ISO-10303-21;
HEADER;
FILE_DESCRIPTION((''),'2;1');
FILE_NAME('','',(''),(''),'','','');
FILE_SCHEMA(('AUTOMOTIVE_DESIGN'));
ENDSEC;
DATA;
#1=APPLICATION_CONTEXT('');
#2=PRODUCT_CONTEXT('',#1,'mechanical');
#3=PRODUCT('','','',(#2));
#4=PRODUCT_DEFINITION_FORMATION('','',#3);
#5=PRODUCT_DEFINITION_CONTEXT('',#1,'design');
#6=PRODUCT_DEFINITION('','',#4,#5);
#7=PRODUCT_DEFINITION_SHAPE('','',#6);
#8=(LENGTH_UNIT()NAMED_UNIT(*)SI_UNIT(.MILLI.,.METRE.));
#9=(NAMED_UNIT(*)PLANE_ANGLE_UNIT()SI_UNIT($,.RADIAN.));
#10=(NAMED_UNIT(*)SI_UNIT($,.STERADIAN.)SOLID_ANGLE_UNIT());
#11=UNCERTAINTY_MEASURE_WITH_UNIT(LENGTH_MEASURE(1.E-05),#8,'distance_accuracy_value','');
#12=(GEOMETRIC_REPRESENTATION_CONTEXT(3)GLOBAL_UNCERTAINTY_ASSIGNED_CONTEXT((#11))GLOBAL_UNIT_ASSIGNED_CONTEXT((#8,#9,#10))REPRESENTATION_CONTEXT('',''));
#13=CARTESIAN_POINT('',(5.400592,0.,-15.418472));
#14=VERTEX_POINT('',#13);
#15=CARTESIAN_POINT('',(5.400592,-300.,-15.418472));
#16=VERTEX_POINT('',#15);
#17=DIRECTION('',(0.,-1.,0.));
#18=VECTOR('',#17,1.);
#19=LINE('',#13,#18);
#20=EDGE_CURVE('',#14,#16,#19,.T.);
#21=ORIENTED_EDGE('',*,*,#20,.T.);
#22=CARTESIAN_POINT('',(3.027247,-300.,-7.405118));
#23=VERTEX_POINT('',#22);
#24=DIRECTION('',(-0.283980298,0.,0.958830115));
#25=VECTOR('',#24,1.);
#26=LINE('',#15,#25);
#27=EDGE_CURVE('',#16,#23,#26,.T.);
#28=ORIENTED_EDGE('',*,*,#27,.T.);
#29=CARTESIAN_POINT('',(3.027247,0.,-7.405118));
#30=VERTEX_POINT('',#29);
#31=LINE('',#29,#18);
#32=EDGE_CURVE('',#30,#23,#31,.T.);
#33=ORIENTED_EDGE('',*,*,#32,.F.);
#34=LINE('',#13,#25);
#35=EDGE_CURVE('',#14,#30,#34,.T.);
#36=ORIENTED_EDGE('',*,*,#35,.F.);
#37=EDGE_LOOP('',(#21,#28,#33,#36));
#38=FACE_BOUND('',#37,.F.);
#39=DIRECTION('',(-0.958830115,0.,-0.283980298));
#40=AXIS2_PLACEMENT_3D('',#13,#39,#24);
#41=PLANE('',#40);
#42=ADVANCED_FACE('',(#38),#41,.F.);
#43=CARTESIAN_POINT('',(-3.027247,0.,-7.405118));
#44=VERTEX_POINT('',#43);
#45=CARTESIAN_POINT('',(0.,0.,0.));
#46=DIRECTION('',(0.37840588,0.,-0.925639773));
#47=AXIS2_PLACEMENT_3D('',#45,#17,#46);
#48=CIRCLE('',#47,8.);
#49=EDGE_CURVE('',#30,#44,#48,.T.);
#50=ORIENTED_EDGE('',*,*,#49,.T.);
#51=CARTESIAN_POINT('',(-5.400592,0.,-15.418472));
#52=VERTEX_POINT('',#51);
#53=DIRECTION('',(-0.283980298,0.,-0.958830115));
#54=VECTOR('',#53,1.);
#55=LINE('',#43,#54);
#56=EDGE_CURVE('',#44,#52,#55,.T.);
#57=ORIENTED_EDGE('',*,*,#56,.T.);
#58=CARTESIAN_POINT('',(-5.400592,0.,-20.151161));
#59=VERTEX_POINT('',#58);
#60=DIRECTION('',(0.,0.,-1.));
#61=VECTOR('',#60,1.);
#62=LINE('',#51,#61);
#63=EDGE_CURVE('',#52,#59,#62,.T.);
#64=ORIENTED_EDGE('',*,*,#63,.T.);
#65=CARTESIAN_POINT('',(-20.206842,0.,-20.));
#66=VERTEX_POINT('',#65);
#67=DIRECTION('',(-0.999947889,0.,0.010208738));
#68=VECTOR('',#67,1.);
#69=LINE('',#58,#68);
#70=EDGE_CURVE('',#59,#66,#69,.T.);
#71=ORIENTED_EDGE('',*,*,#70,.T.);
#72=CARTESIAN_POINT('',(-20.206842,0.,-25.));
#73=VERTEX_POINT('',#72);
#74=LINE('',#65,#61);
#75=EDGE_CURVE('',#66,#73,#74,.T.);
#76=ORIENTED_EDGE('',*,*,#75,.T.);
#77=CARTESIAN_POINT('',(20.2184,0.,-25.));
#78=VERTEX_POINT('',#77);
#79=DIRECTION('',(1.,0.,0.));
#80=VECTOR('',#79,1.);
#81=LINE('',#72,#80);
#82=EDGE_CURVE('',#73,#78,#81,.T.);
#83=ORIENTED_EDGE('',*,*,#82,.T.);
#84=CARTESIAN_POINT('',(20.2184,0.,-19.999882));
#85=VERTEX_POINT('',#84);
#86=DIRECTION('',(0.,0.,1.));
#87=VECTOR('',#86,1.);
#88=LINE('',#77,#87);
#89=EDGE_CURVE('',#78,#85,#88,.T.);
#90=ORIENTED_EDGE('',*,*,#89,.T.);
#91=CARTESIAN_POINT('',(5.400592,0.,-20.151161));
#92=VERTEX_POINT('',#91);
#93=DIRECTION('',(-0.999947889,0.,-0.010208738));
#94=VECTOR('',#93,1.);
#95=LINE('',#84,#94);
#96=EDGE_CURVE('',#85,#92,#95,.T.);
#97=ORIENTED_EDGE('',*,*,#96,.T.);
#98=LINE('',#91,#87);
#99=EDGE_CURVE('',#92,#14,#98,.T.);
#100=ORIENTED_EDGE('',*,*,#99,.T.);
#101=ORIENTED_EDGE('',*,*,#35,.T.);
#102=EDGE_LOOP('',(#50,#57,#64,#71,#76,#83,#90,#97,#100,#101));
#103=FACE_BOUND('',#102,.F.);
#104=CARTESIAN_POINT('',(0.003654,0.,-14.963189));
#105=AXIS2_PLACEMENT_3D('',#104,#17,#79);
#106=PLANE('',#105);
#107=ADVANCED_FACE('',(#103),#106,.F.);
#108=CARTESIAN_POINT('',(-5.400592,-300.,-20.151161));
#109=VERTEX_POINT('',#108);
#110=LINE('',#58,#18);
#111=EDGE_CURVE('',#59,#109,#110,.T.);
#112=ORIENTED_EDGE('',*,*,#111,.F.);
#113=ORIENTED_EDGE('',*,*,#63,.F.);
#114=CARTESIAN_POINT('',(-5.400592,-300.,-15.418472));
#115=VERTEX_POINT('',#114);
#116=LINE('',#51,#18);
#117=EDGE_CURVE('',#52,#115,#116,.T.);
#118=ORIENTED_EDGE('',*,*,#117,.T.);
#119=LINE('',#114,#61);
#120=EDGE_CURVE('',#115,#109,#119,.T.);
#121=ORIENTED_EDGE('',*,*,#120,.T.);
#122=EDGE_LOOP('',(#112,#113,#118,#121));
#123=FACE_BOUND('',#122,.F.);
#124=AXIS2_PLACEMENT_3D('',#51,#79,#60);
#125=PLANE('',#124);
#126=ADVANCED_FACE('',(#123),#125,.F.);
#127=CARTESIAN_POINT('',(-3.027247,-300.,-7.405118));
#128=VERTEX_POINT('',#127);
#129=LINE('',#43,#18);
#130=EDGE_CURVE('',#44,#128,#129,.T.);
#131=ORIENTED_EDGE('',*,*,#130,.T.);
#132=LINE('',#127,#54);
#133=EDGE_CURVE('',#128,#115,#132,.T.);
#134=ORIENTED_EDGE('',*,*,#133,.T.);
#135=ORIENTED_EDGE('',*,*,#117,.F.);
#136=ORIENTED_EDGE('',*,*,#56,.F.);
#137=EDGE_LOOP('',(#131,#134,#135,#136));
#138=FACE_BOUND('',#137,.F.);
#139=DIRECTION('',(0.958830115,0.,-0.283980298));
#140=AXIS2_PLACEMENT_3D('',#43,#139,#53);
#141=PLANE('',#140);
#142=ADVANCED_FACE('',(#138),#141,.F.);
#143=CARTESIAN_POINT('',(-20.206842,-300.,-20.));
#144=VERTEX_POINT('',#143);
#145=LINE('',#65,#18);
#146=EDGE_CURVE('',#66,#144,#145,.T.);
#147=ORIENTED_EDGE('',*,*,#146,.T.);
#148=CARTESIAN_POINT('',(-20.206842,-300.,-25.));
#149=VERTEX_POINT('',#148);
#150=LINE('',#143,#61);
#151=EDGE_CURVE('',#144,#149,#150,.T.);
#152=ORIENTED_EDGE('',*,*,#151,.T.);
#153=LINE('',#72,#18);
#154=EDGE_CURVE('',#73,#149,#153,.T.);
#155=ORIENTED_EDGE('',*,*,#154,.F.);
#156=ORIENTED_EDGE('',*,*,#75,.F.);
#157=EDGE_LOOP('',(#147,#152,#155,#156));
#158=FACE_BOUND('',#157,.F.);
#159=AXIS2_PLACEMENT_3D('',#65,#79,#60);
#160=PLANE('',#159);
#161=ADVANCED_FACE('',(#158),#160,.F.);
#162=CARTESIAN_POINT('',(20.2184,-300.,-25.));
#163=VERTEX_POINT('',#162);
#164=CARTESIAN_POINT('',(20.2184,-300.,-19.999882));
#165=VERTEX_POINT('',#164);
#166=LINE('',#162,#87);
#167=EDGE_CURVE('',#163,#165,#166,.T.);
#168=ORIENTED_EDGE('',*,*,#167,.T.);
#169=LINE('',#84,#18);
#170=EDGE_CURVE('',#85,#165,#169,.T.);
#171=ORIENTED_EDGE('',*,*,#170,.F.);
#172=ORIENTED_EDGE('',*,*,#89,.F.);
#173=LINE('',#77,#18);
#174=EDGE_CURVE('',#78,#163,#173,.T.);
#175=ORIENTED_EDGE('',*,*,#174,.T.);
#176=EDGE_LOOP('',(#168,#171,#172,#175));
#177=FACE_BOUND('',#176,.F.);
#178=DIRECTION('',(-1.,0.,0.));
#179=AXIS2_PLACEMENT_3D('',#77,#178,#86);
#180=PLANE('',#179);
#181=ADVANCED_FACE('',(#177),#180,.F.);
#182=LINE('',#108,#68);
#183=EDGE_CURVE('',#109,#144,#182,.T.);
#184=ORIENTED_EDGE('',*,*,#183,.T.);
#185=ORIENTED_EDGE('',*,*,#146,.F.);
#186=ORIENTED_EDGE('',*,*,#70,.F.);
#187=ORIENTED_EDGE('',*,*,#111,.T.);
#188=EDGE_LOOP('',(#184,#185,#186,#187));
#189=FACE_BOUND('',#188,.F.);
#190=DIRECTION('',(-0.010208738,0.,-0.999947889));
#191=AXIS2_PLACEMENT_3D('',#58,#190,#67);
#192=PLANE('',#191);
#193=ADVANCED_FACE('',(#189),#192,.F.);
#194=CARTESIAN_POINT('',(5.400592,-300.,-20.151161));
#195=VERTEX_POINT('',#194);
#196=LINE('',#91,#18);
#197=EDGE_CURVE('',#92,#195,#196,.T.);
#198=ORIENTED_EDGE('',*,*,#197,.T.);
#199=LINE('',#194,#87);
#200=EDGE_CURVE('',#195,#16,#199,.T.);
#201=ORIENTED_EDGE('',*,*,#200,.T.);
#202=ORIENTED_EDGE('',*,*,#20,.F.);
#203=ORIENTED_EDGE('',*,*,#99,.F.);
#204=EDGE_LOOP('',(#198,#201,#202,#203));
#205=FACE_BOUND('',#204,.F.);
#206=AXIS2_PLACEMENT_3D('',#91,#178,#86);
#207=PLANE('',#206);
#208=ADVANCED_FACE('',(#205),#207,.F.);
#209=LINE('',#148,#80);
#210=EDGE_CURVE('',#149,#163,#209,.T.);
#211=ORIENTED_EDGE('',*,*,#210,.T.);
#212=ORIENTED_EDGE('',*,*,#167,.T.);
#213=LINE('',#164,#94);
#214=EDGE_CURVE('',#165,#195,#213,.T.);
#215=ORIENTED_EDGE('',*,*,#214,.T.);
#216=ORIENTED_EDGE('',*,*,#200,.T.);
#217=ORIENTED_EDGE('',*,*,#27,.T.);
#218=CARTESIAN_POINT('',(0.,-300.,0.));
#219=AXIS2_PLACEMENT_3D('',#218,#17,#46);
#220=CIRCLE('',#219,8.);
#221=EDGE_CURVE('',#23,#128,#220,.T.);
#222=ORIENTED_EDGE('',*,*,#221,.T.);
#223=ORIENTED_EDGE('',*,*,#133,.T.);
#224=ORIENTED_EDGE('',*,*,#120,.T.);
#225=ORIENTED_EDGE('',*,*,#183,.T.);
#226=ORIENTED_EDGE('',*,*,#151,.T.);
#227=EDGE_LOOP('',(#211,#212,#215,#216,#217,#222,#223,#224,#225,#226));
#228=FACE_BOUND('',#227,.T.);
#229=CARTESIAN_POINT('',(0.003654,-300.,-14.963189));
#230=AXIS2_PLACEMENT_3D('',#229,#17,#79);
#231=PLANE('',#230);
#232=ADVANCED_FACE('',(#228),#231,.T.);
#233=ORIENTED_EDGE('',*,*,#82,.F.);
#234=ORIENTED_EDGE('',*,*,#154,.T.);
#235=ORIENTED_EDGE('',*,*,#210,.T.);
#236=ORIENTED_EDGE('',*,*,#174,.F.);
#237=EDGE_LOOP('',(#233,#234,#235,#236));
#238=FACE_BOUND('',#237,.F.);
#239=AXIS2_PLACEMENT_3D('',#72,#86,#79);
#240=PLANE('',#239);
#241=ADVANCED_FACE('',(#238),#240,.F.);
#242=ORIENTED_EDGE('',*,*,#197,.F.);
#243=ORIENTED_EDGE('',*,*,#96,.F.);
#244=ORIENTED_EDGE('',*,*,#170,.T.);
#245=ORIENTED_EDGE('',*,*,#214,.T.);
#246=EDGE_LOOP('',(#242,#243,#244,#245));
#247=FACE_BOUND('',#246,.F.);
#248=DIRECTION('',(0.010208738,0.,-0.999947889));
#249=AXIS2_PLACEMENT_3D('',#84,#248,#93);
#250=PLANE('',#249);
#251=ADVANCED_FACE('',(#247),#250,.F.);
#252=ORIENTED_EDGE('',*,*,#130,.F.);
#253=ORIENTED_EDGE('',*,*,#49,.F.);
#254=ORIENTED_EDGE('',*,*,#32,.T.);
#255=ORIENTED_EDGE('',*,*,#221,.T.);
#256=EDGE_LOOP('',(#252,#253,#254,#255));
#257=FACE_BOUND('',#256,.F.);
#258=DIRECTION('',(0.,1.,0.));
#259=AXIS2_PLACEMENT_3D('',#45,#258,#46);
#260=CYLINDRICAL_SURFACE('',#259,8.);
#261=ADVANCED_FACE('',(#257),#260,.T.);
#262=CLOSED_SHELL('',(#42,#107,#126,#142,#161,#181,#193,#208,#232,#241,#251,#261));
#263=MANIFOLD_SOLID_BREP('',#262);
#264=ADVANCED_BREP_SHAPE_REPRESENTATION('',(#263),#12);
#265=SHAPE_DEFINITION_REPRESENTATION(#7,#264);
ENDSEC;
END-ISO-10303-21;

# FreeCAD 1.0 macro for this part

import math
import FreeCAD as App
import Part
import Sketcher
from FreeCAD import Vector

doc = App.newDocument("Part")
params = doc.addObject("Spreadsheet::Sheet", "Params")
for row, (alias, value) in enumerate([
    ("sketch1_radius", "8 mm"),
    ("sketch1_height", "5 mm"),
    ("pad1_length", "300 mm"),
], start=1):
    params.set(f"A{row}", alias)
    params.set(f"B{row}", "=" + value)
    params.setAlias(f"B{row}", alias)

body = doc.addObject("PartDesign::Body", "Body")

# Sketch on XZ plane
sketch1 = doc.addObject("Sketcher::SketchObject", "Sketch")
body.addObject(sketch1)
sketch1.AttachmentSupport = (doc.XZ_Plane, [""])
sketch1.MapMode = "FlatFace"
sketch1.addGeometry([
    Part.LineSegment(Vector(5.4, -15.4, 0), Vector(3, -7.4, 0)),  # 0
    Part.ArcOfCircle(Part.Circle(Vector(0, 0, 0), Vector(0, 0, 1), 8), math.radians(-68), math.radians(248)),  # 1
    Part.LineSegment(Vector(-3, -7.4, 0), Vector(-5.4, -15.4, 0)),  # 2
    Part.LineSegment(Vector(-5.4, -15.4, 0), Vector(-5.4, -20.2, 0)),  # 3
    Part.LineSegment(Vector(-5.4, -20.2, 0), Vector(-20.2, -20, 0)),  # 4
    Part.LineSegment(Vector(-20.2, -20, 0), Vector(-20.2, -25, 0)),  # 5
    Part.LineSegment(Vector(-20.2, -25, 0), Vector(20.2, -25, 0)),  # 6
    Part.LineSegment(Vector(20.2, -25, 0), Vector(20.2, -20, 0)),  # 7
    Part.LineSegment(Vector(20.2, -20, 0), Vector(5.4, -20.2, 0)),  # 8
    Part.LineSegment(Vector(5.4, -20.2, 0), Vector(5.4, -15.4, 0)),  # 9
], False)
sketch1.addConstraint([
    Sketcher.Constraint("Coincident", 0, 2, 1, 1),
    Sketcher.Constraint("Coincident", 1, 2, 2, 1),
    Sketcher.Constraint("Coincident", 2, 2, 3, 1),
    Sketcher.Constraint("Coincident", 3, 2, 4, 1),
    Sketcher.Constraint("Coincident", 4, 2, 5, 1),
    Sketcher.Constraint("Coincident", 5, 2, 6, 1),
    Sketcher.Constraint("Coincident", 6, 2, 7, 1),
    Sketcher.Constraint("Coincident", 7, 2, 8, 1),
    Sketcher.Constraint("Coincident", 8, 2, 9, 1),
    Sketcher.Constraint("Coincident", 9, 2, 0, 1),
    Sketcher.Constraint("Vertical", 3),
    Sketcher.Constraint("Vertical", 5),
    Sketcher.Constraint("Horizontal", 6),
    Sketcher.Constraint("Vertical", 7),
    Sketcher.Constraint("Vertical", 9),
    Sketcher.Constraint("Coincident", 1, 3, -1, 1),
    Sketcher.Constraint("Symmetric", 3, 2, 8, 2, -2),
    Sketcher.Constraint("Horizontal", 0, 2, 1, 2),
    Sketcher.Constraint("Horizontal", 2, 2, 9, 2),
    Sketcher.Constraint("Radius", 1, 8.0),
    Sketcher.Constraint("DistanceY", 5, 2, 5, 1, 5.0),
    Sketcher.Constraint("DistanceY", 4, 2, -1, 1, 20.0),
    Sketcher.Constraint("DistanceX", 6, 1, 6, 2, 40.425242),
    Sketcher.Constraint("DistanceY", 3, 2, 3, 1, 4.732689),
    Sketcher.Constraint("DistanceY", 7, 1, 7, 2, 5.000118),
    Sketcher.Constraint("DistanceX", -1, 1, 6, 2, 20.2184),
    Sketcher.Constraint("Distance", 0, 8.357428),
    Sketcher.Constraint("Distance", 4, 14.807022),
    Sketcher.Constraint("DistanceY", 3, 2, -1, 1, 20.151161),
])
sketch1.setExpression("Constraints[19]", "Params.sketch1_radius")
sketch1.setExpression("Constraints[20]", "Params.sketch1_height")
pad1 = doc.addObject("PartDesign::Pad", "Pad")
body.addObject(pad1)
pad1.Profile = sketch1
pad1.setExpression("Length", "Params.pad1_length")

doc.recompute()
